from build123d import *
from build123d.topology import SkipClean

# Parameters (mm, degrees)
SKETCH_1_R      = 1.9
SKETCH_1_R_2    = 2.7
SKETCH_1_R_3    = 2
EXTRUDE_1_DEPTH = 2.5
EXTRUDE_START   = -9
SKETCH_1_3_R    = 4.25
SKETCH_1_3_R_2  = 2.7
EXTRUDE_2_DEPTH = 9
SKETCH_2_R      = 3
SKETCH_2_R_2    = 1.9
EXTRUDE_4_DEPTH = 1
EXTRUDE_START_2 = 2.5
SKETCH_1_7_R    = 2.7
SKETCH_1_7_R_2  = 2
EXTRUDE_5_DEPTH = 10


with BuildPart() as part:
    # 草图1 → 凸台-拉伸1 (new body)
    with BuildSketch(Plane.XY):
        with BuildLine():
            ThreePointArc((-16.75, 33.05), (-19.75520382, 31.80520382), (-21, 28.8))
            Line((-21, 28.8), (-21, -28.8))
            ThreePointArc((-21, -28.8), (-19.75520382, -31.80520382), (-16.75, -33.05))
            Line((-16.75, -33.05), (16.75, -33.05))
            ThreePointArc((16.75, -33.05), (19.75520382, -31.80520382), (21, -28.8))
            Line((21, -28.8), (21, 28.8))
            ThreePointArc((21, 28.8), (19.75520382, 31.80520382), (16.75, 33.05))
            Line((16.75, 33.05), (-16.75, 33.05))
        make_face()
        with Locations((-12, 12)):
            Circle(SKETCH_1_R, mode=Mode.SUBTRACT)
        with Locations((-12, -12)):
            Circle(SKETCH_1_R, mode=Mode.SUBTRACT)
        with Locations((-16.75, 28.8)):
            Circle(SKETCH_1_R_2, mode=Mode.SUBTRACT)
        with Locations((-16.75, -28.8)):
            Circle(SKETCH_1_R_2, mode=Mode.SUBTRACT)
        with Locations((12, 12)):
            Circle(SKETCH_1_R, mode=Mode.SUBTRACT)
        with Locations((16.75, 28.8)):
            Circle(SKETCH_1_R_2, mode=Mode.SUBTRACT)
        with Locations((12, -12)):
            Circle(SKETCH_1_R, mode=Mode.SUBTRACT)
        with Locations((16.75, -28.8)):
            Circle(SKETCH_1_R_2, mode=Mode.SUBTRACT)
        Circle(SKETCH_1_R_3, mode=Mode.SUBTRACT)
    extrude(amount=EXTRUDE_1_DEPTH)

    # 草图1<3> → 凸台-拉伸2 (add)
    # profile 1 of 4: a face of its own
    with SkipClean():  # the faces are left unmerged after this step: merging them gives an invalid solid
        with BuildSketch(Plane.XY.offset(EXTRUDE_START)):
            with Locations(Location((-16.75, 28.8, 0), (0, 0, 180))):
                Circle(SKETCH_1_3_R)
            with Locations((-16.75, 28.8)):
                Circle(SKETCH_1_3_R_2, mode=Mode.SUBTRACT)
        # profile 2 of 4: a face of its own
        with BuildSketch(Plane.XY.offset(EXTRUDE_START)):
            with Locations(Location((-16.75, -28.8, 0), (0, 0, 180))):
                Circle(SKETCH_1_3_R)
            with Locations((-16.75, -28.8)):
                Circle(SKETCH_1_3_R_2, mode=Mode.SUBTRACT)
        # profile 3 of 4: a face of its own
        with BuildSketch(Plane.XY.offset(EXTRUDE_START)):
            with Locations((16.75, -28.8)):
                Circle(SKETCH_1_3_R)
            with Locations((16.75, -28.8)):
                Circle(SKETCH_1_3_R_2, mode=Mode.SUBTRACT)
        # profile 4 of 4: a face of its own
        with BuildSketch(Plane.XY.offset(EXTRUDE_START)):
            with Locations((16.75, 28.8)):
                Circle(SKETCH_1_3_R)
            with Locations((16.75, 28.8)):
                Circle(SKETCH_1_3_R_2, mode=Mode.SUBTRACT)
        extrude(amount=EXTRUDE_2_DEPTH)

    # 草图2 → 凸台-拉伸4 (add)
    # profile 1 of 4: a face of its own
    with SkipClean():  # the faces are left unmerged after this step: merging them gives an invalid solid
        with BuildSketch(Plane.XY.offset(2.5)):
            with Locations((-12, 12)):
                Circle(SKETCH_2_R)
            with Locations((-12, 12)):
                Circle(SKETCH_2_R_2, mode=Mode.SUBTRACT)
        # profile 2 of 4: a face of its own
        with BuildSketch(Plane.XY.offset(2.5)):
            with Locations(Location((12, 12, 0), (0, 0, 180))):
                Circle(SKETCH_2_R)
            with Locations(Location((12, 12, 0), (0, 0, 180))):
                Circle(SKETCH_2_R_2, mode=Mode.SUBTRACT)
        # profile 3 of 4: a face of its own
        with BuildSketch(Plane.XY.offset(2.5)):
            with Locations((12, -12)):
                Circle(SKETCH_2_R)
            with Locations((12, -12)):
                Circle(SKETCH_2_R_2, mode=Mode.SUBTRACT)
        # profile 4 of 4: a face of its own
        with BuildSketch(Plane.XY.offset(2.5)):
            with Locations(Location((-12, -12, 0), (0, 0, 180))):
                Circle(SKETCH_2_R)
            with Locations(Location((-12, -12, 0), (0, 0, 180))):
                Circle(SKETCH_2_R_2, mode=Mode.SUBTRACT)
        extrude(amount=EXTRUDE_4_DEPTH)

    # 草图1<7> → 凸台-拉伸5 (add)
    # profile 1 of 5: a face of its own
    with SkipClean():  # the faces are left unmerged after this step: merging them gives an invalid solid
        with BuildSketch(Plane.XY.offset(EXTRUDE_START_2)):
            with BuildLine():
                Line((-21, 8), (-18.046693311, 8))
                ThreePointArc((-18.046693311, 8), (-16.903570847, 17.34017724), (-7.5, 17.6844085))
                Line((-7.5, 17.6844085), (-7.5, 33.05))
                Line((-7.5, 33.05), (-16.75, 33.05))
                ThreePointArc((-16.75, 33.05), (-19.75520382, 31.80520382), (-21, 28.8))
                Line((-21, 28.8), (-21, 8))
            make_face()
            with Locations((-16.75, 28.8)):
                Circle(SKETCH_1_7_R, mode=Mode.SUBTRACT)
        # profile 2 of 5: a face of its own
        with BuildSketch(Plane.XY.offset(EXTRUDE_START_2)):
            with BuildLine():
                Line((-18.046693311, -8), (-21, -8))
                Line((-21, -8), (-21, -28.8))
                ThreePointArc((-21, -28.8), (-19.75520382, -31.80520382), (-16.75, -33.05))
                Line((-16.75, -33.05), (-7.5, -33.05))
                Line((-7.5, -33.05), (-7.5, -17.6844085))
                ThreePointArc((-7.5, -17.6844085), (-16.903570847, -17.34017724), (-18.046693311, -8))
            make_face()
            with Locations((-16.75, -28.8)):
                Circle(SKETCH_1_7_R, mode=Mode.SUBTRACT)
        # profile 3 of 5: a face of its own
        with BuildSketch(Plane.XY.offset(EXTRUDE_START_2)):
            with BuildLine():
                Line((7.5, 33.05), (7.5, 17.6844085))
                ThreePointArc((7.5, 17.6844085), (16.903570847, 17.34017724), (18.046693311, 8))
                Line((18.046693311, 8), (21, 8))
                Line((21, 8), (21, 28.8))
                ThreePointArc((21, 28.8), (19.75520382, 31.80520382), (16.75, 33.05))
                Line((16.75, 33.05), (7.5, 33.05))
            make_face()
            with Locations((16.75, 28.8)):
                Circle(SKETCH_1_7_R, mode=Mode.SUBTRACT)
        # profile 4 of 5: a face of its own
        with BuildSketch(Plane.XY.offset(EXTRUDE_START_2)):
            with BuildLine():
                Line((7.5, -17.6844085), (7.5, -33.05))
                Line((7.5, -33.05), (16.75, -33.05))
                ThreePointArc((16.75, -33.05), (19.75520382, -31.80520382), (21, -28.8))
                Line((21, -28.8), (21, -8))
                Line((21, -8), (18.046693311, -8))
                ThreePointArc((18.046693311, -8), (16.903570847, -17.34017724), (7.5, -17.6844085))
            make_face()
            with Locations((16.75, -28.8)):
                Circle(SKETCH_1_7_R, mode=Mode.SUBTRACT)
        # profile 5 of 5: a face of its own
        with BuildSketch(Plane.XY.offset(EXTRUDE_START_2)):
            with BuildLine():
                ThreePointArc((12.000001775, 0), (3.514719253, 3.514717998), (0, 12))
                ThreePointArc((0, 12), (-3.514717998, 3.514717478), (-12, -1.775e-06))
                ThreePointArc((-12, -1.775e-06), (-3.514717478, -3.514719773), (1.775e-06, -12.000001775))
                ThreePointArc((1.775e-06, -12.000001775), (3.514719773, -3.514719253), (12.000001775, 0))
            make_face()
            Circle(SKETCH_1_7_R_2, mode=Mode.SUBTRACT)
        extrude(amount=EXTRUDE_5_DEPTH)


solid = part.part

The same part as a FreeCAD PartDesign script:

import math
import FreeCAD as App
import Part
import Sketcher

doc = App.newDocument("Part")
body = doc.addObject("PartDesign::Body", "Body")

sketch1 = body.newObject("Sketcher::SketchObject", "Sketch")
sketch1.AttachmentSupport = (doc.getObject("XY_Plane"), [""])
sketch1.MapMode = "FlatFace"
sketch1.addGeometry([
    Part.ArcOfCircle(Part.Circle(App.Vector(-16.75, 28.8, 0), App.Vector(0, 0, 1), 4.25), math.radians(90), math.radians(180)),
    Part.LineSegment(App.Vector(-21, 28.8, 0), App.Vector(-21, -28.8, 0)),
    Part.ArcOfCircle(Part.Circle(App.Vector(-16.75, -28.8, 0), App.Vector(0, 0, 1), 4.25), math.radians(180), math.radians(270)),
    Part.LineSegment(App.Vector(-16.75, -33.05, 0), App.Vector(16.75, -33.05, 0)),
    Part.ArcOfCircle(Part.Circle(App.Vector(16.75, -28.8, 0), App.Vector(0, 0, 1), 4.25), math.radians(-90), math.radians(0)),
    Part.LineSegment(App.Vector(21, -28.8, 0), App.Vector(21, 28.8, 0)),
    Part.ArcOfCircle(Part.Circle(App.Vector(16.75, 28.8, 0), App.Vector(0, 0, 1), 4.25), math.radians(0), math.radians(90)),
    Part.LineSegment(App.Vector(16.75, 33.05, 0), App.Vector(-16.75, 33.05, 0)),
    Part.Circle(App.Vector(-16.75, -28.8, 0), App.Vector(0, 0, 1), 2.7),
    Part.Circle(App.Vector(-12, -12, 0), App.Vector(0, 0, 1), 1.9),
    Part.Circle(App.Vector(16.75, -28.8, 0), App.Vector(0, 0, 1), 2.7),
    Part.Circle(App.Vector(12, -12, 0), App.Vector(0, 0, 1), 1.9),
    Part.Circle(App.Vector(-12, 12, 0), App.Vector(0, 0, 1), 1.9),
    Part.Circle(App.Vector(-16.75, 28.8, 0), App.Vector(0, 0, 1), 2.7),
    Part.Circle(App.Vector(0, 0, 0), App.Vector(0, 0, 1), 2),
    Part.Circle(App.Vector(12, 12, 0), App.Vector(0, 0, 1), 1.9),
    Part.Circle(App.Vector(16.75, 28.8, 0), App.Vector(0, 0, 1), 2.7),
], False)
sketch1.addConstraint([
    Sketcher.Constraint("Tangent", 0, 2, 1, 1),
    Sketcher.Constraint("Tangent", 1, 2, 2, 1),
    Sketcher.Constraint("Tangent", 2, 2, 3, 1),
    Sketcher.Constraint("Tangent", 3, 2, 4, 1),
    Sketcher.Constraint("Tangent", 4, 2, 5, 1),
    Sketcher.Constraint("Tangent", 5, 2, 6, 1),
    Sketcher.Constraint("Tangent", 6, 2, 7, 1),
    Sketcher.Constraint("Tangent", 7, 2, 0, 1),
    Sketcher.Constraint("Vertical", 1),
    Sketcher.Constraint("Horizontal", 3),
    Sketcher.Constraint("Vertical", 5),
    Sketcher.Constraint("Horizontal", 7),
    Sketcher.Constraint("Coincident", 14, 3, -1, 1),
    Sketcher.Constraint("Coincident", 8, 3, 2, 3),
    Sketcher.Constraint("Coincident", 10, 3, 4, 3),
    Sketcher.Constraint("Coincident", 13, 3, 0, 3),
    Sketcher.Constraint("Coincident", 16, 3, 6, 3),
    Sketcher.Constraint("Equal", 0, 2),
    Sketcher.Constraint("Equal", 2, 4),
    Sketcher.Constraint("Equal", 4, 6),
    Sketcher.Constraint("Equal", 8, 10),
    Sketcher.Constraint("Equal", 9, 11),
    Sketcher.Constraint("Equal", 11, 12),
    Sketcher.Constraint("Equal", 10, 13),
    Sketcher.Constraint("Equal", 12, 15),
    Sketcher.Constraint("Equal", 13, 16),
    Sketcher.Constraint("Symmetric", 0, 3, 4, 3, -1, 1),
    Sketcher.Constraint("Symmetric", 11, 3, 12, 3, -1, 1),
    Sketcher.Constraint("Symmetric", 9, 3, 15, 3, -1, 1),
    Sketcher.Constraint("Symmetric", 9, 3, 11, 3, -2),
    Sketcher.Constraint("Diameter", 14, 4.0),
    Sketcher.Constraint("Diameter", 8, 5.4),
    Sketcher.Constraint("Diameter", 9, 3.8),
    Sketcher.Constraint("Radius", 0, 4.25),
    Sketcher.Constraint("DistanceX", 3, 1, 3, 2, 33.5),
    Sketcher.Constraint("DistanceY", 1, 2, 1, 1, 57.6),
    Sketcher.Constraint("DistanceX", 9, 3, -1, 1, 12.0),
    Sketcher.Constraint("DistanceY", 9, 3, -1, 1, 12.0),
])
pad1 = body.newObject("PartDesign::Pad", "Pad")
pad1.Profile = sketch1
pad1.Length = 2.5

sketch2 = body.newObject("Sketcher::SketchObject", "Sketch001")
sketch2.AttachmentSupport = (doc.getObject("XY_Plane"), [""])
sketch2.MapMode = "FlatFace"
sketch2.AttachmentOffset = App.Placement(App.Vector(0, 0, -9), App.Rotation())
sketch2.addGeometry([
    Part.Circle(App.Vector(-16.75, 28.8, 0), App.Vector(0, 0, 1), 4.25),
    Part.Circle(App.Vector(-16.75, 28.8, 0), App.Vector(0, 0, 1), 2.7),
    Part.Circle(App.Vector(-16.75, -28.8, 0), App.Vector(0, 0, 1), 4.25),
    Part.Circle(App.Vector(-16.75, -28.8, 0), App.Vector(0, 0, 1), 2.7),
    Part.Circle(App.Vector(16.75, -28.8, 0), App.Vector(0, 0, 1), 4.25),
    Part.Circle(App.Vector(16.75, -28.8, 0), App.Vector(0, 0, 1), 2.7),
    Part.Circle(App.Vector(16.75, 28.8, 0), App.Vector(0, 0, 1), 4.25),
    Part.Circle(App.Vector(16.75, 28.8, 0), App.Vector(0, 0, 1), 2.7),
], False)
sketch2.addConstraint([
    Sketcher.Constraint("Coincident", 1, 3, 0, 3),
    Sketcher.Constraint("Coincident", 3, 3, 2, 3),
    Sketcher.Constraint("Coincident", 5, 3, 4, 3),
    Sketcher.Constraint("Coincident", 7, 3, 6, 3),
    Sketcher.Constraint("Equal", 0, 2),
    Sketcher.Constraint("Equal", 1, 3),
    Sketcher.Constraint("Equal", 2, 4),
    Sketcher.Constraint("Equal", 3, 5),
    Sketcher.Constraint("Equal", 4, 6),
    Sketcher.Constraint("Equal", 5, 7),
    Sketcher.Constraint("Symmetric", 0, 3, 4, 3, -1, 1),
    Sketcher.Constraint("Symmetric", 2, 3, 6, 3, -1, 1),
    Sketcher.Constraint("Symmetric", 2, 3, 4, 3, -2),
    Sketcher.Constraint("Diameter", 0, 8.5),
    Sketcher.Constraint("Diameter", 1, 5.4),
    Sketcher.Constraint("DistanceY", -1, 1, 0, 3, 28.8),
    Sketcher.Constraint("DistanceX", 2, 3, 4, 3, 33.5),
])
pad2 = body.newObject("PartDesign::Pad", "Pad001")
pad2.Profile = sketch2
pad2.Length = 9

sketch3 = body.newObject("Sketcher::SketchObject", "Sketch002")
sketch3.AttachmentSupport = (doc.getObject("XY_Plane"), [""])
sketch3.MapMode = "FlatFace"
sketch3.AttachmentOffset = App.Placement(App.Vector(0, 0, 2.5), App.Rotation())
sketch3.addGeometry([
    Part.Circle(App.Vector(-12, 12, 0), App.Vector(0, 0, 1), 3),
    Part.Circle(App.Vector(-12, 12, 0), App.Vector(0, 0, 1), 1.9),
    Part.Circle(App.Vector(12, 12, 0), App.Vector(0, 0, 1), 3),
    Part.Circle(App.Vector(12, 12, 0), App.Vector(0, 0, 1), 1.9),
    Part.Circle(App.Vector(12, -12, 0), App.Vector(0, 0, 1), 3),
    Part.Circle(App.Vector(12, -12, 0), App.Vector(0, 0, 1), 1.9),
    Part.Circle(App.Vector(-12, -12, 0), App.Vector(0, 0, 1), 3),
    Part.Circle(App.Vector(-12, -12, 0), App.Vector(0, 0, 1), 1.9),
], False)
sketch3.addConstraint([
    Sketcher.Constraint("Coincident", 1, 3, 0, 3),
    Sketcher.Constraint("Coincident", 3, 3, 2, 3),
    Sketcher.Constraint("Coincident", 5, 3, 4, 3),
    Sketcher.Constraint("Coincident", 7, 3, 6, 3),
    Sketcher.Constraint("Equal", 0, 2),
    Sketcher.Constraint("Equal", 1, 3),
    Sketcher.Constraint("Equal", 2, 4),
    Sketcher.Constraint("Equal", 3, 5),
    Sketcher.Constraint("Equal", 4, 6),
    Sketcher.Constraint("Equal", 5, 7),
    Sketcher.Constraint("Symmetric", 0, 3, 4, 3, -1, 1),
    Sketcher.Constraint("Symmetric", 2, 3, 6, 3, -1, 1),
    Sketcher.Constraint("Symmetric", 0, 3, 2, 3, -2),
    Sketcher.Constraint("Diameter", 0, 6.0),
    Sketcher.Constraint("Diameter", 1, 3.8),
    Sketcher.Constraint("DistanceX", 0, 3, -1, 1, 12.0),
    Sketcher.Constraint("DistanceY", -1, 1, 0, 3, 12.0),
])
pad3 = body.newObject("PartDesign::Pad", "Pad002")
pad3.Profile = sketch3
pad3.Length = 1

sketch4 = body.newObject("Sketcher::SketchObject", "Sketch003")
sketch4.AttachmentSupport = (doc.getObject("XY_Plane"), [""])
sketch4.MapMode = "FlatFace"
sketch4.AttachmentOffset = App.Placement(App.Vector(0, 0, 2.5), App.Rotation())
sketch4.addGeometry([
    Part.LineSegment(App.Vector(-21, 8, 0), App.Vector(-18.046693, 8, 0)),
    Part.ArcOfCircle(Part.Circle(App.Vector(-12, 12, 0), App.Vector(0, 0, 1), 7.25), math.radians(51.633486), math.radians(213.485377)),
    Part.LineSegment(App.Vector(-7.5, 17.684408, 0), App.Vector(-7.5, 33.05, 0)),
    Part.LineSegment(App.Vector(-7.5, 33.05, 0), App.Vector(-16.75, 33.05, 0)),
    Part.ArcOfCircle(Part.Circle(App.Vector(-16.75, 28.8, 0), App.Vector(0, 0, 1), 4.25), math.radians(90), math.radians(180)),
    Part.LineSegment(App.Vector(-21, 28.8, 0), App.Vector(-21, 8, 0)),
    Part.Circle(App.Vector(-16.75, 28.8, 0), App.Vector(0, 0, 1), 2.7),
    Part.LineSegment(App.Vector(-18.046693, -8, 0), App.Vector(-21, -8, 0)),
    Part.LineSegment(App.Vector(-21, -8, 0), App.Vector(-21, -28.8, 0)),
    Part.ArcOfCircle(Part.Circle(App.Vector(-16.75, -28.8, 0), App.Vector(0, 0, 1), 4.25), math.radians(180), math.radians(270)),
    Part.LineSegment(App.Vector(-16.75, -33.05, 0), App.Vector(-7.5, -33.05, 0)),
    Part.LineSegment(App.Vector(-7.5, -33.05, 0), App.Vector(-7.5, -17.684408, 0)),
    Part.ArcOfCircle(Part.Circle(App.Vector(-12, -12, 0), App.Vector(0, 0, 1), 7.25), math.radians(146.514623), math.radians(308.366514)),
    Part.Circle(App.Vector(-16.75, -28.8, 0), App.Vector(0, 0, 1), 2.7),
    Part.LineSegment(App.Vector(7.5, 33.05, 0), App.Vector(7.5, 17.684408, 0)),
    Part.ArcOfCircle(Part.Circle(App.Vector(12, 12, 0), App.Vector(0, 0, 1), 7.25), math.radians(-33.485377), math.radians(128.366514)),
    Part.LineSegment(App.Vector(18.046693, 8, 0), App.Vector(21, 8, 0)),
    Part.LineSegment(App.Vector(21, 8, 0), App.Vector(21, 28.8, 0)),
    Part.ArcOfCircle(Part.Circle(App.Vector(16.75, 28.8, 0), App.Vector(0, 0, 1), 4.25), math.radians(0), math.radians(90)),
    Part.LineSegment(App.Vector(16.75, 33.05, 0), App.Vector(7.5, 33.05, 0)),
    Part.Circle(App.Vector(16.75, 28.8, 0), App.Vector(0, 0, 1), 2.7),
    Part.LineSegment(App.Vector(7.5, -17.684408, 0), App.Vector(7.5, -33.05, 0)),
    Part.LineSegment(App.Vector(7.5, -33.05, 0), App.Vector(16.75, -33.05, 0)),
    Part.ArcOfCircle(Part.Circle(App.Vector(16.75, -28.8, 0), App.Vector(0, 0, 1), 4.25), math.radians(-90), math.radians(0)),
    Part.LineSegment(App.Vector(21, -28.8, 0), App.Vector(21, -8, 0)),
    Part.LineSegment(App.Vector(21, -8, 0), App.Vector(18.046693, -8, 0)),
    Part.ArcOfCircle(Part.Circle(App.Vector(12, -12, 0), App.Vector(0, 0, 1), 7.25), math.radians(-128.366514), math.radians(33.485377)),
    Part.Circle(App.Vector(16.75, -28.8, 0), App.Vector(0, 0, 1), 2.7),
    Part.ArcOfCircle(Part.Circle(App.Vector(12, 12, 0), App.Vector(0, 0, 1), 12), math.radians(180), math.radians(270.000008)),
    Part.ArcOfCircle(Part.Circle(App.Vector(-12, 11.999998, 0), App.Vector(0, 0, 1), 12), math.radians(-90), math.radians(0.000008)),
    Part.ArcOfCircle(Part.Circle(App.Vector(-11.999998, -12.000002, 0), App.Vector(0, 0, 1), 12), math.radians(0), math.radians(90.000008)),
    Part.ArcOfCircle(Part.Circle(App.Vector(12.000002, -12, 0), App.Vector(0, 0, 1), 12), math.radians(90), math.radians(180.000008)),
    Part.Circle(App.Vector(0, 0, 0), App.Vector(0, 0, 1), 2),
], False)
sketch4.addConstraint([
    Sketcher.Constraint("Coincident", 0, 2, 1, 2),
    Sketcher.Constraint("Coincident", 1, 1, 2, 1),
    Sketcher.Constraint("Coincident", 2, 2, 3, 1),
    Sketcher.Constraint("Tangent", 3, 2, 4, 1),
    Sketcher.Constraint("Tangent", 4, 2, 5, 1),
    Sketcher.Constraint("Coincident", 5, 2, 0, 1),
    Sketcher.Constraint("Coincident", 7, 2, 8, 1),
    Sketcher.Constraint("Tangent", 8, 2, 9, 1),
    Sketcher.Constraint("Tangent", 9, 2, 10, 1),
    Sketcher.Constraint("Coincident", 10, 2, 11, 1),
    Sketcher.Constraint("Coincident", 11, 2, 12, 2),
    Sketcher.Constraint("Coincident", 12, 1, 7, 1),
    Sketcher.Constraint("Coincident", 14, 2, 15, 2),
    Sketcher.Constraint("Coincident", 15, 1, 16, 1),
    Sketcher.Constraint("Coincident", 16, 2, 17, 1),
    Sketcher.Constraint("Tangent", 17, 2, 18, 1),
    Sketcher.Constraint("Tangent", 18, 2, 19, 1),
    Sketcher.Constraint("Coincident", 19, 2, 14, 1),
    Sketcher.Constraint("Coincident", 21, 2, 22, 1),
    Sketcher.Constraint("Tangent", 22, 2, 23, 1),
    Sketcher.Constraint("Tangent", 23, 2, 24, 1),
    Sketcher.Constraint("Coincident", 24, 2, 25, 1),
    Sketcher.Constraint("Coincident", 25, 2, 26, 2),
    Sketcher.Constraint("Coincident", 26, 1, 21, 1),
    Sketcher.Constraint("Tangent", 28, 1, 29, 2),
    Sketcher.Constraint("Tangent", 29, 1, 30, 2),
    Sketcher.Constraint("Tangent", 30, 1, 31, 2),
    Sketcher.Constraint("Tangent", 31, 1, 28, 2),
    Sketcher.Constraint("Horizontal", 0),
    Sketcher.Constraint("Vertical", 2),
    Sketcher.Constraint("Horizontal", 3),
    Sketcher.Constraint("Vertical", 5),
    Sketcher.Constraint("Horizontal", 7),
    Sketcher.Constraint("Vertical", 8),
    Sketcher.Constraint("Horizontal", 10),
    Sketcher.Constraint("Vertical", 11),
    Sketcher.Constraint("Vertical", 14),
    Sketcher.Constraint("Horizontal", 16),
    Sketcher.Constraint("Vertical", 17),
    Sketcher.Constraint("Horizontal", 19),
    Sketcher.Constraint("Vertical", 21),
    Sketcher.Constraint("Horizontal", 22),
    Sketcher.Constraint("Vertical", 24),
    Sketcher.Constraint("Horizontal", 25),
    Sketcher.Constraint("Coincident", 32, 3, -1, 1),
    Sketcher.Constraint("Coincident", 6, 3, 4, 3),
    Sketcher.Constraint("Coincident", 13, 3, 9, 3),
    Sketcher.Constraint("Coincident", 20, 3, 18, 3),
    Sketcher.Constraint("Coincident", 27, 3, 23, 3),
    Sketcher.Constraint("Coincident", 28, 3, 15, 3),
    Sketcher.Constraint("Coincident", 29, 3, 1, 3),
    Sketcher.Constraint("Coincident", 30, 3, 12, 3),
    Sketcher.Constraint("Coincident", 31, 3, 26, 3),
    Sketcher.Constraint("Equal", 4, 9),
    Sketcher.Constraint("Equal", 1, 12),
    Sketcher.Constraint("Equal", 6, 13),
    Sketcher.Constraint("Equal", 12, 15),
    Sketcher.Constraint("Equal", 9, 18),
    Sketcher.Constraint("Equal", 13, 20),
    Sketcher.Constraint("Equal", 18, 23),
    Sketcher.Constraint("Equal", 15, 26),
    Sketcher.Constraint("Equal", 20, 27),
    Sketcher.Constraint("Equal", 28, 29),
    Sketcher.Constraint("Equal", 29, 30),
    Sketcher.Constraint("Equal", 30, 31),
    Sketcher.Constraint("Symmetric", 12, 3, 15, 3, -1, 1),
    Sketcher.Constraint("Symmetric", 9, 3, 18, 3, -1, 1),
    Sketcher.Constraint("Symmetric", 4, 3, 23, 3, -1, 1),
    Sketcher.Constraint("Symmetric", 1, 3, 15, 3, -2),
    Sketcher.Constraint("Symmetric", 4, 3, 18, 3, -2),
    Sketcher.Constraint("Horizontal", 1, 1, 14, 2),
    Sketcher.Constraint("Horizontal", 5, 2, 15, 1),
    Sketcher.Constraint("Horizontal", 12, 1, 24, 2),
    Sketcher.Constraint("Horizontal", 11, 2, 26, 1),
    Sketcher.Constraint("Vertical", 2, 2, 10, 2),
    Sketcher.Constraint("Vertical", 0, 2, 12, 1),
    Sketcher.Constraint("Diameter", 32, 4.0),
    Sketcher.Constraint("Radius", 28, 12.0),
    Sketcher.Constraint("Diameter", 6, 5.4),
    Sketcher.Constraint("Radius", 1, 7.25),
    Sketcher.Constraint("Radius", 4, 4.25),
    Sketcher.Constraint("DistanceY", 5, 2, 5, 1, 20.8),
    Sketcher.Constraint("DistanceY", -1, 1, 0, 2, 8.0),
    Sketcher.Constraint("DistanceX", 4, 2, -1, 1, 21.0),
    Sketcher.Constraint("DistanceX", 1, 1, 14, 2, 15.0),
])
pad4 = body.newObject("PartDesign::Pad", "Pad003")
pad4.Profile = sketch4
pad4.Length = 10

doc.recompute()
